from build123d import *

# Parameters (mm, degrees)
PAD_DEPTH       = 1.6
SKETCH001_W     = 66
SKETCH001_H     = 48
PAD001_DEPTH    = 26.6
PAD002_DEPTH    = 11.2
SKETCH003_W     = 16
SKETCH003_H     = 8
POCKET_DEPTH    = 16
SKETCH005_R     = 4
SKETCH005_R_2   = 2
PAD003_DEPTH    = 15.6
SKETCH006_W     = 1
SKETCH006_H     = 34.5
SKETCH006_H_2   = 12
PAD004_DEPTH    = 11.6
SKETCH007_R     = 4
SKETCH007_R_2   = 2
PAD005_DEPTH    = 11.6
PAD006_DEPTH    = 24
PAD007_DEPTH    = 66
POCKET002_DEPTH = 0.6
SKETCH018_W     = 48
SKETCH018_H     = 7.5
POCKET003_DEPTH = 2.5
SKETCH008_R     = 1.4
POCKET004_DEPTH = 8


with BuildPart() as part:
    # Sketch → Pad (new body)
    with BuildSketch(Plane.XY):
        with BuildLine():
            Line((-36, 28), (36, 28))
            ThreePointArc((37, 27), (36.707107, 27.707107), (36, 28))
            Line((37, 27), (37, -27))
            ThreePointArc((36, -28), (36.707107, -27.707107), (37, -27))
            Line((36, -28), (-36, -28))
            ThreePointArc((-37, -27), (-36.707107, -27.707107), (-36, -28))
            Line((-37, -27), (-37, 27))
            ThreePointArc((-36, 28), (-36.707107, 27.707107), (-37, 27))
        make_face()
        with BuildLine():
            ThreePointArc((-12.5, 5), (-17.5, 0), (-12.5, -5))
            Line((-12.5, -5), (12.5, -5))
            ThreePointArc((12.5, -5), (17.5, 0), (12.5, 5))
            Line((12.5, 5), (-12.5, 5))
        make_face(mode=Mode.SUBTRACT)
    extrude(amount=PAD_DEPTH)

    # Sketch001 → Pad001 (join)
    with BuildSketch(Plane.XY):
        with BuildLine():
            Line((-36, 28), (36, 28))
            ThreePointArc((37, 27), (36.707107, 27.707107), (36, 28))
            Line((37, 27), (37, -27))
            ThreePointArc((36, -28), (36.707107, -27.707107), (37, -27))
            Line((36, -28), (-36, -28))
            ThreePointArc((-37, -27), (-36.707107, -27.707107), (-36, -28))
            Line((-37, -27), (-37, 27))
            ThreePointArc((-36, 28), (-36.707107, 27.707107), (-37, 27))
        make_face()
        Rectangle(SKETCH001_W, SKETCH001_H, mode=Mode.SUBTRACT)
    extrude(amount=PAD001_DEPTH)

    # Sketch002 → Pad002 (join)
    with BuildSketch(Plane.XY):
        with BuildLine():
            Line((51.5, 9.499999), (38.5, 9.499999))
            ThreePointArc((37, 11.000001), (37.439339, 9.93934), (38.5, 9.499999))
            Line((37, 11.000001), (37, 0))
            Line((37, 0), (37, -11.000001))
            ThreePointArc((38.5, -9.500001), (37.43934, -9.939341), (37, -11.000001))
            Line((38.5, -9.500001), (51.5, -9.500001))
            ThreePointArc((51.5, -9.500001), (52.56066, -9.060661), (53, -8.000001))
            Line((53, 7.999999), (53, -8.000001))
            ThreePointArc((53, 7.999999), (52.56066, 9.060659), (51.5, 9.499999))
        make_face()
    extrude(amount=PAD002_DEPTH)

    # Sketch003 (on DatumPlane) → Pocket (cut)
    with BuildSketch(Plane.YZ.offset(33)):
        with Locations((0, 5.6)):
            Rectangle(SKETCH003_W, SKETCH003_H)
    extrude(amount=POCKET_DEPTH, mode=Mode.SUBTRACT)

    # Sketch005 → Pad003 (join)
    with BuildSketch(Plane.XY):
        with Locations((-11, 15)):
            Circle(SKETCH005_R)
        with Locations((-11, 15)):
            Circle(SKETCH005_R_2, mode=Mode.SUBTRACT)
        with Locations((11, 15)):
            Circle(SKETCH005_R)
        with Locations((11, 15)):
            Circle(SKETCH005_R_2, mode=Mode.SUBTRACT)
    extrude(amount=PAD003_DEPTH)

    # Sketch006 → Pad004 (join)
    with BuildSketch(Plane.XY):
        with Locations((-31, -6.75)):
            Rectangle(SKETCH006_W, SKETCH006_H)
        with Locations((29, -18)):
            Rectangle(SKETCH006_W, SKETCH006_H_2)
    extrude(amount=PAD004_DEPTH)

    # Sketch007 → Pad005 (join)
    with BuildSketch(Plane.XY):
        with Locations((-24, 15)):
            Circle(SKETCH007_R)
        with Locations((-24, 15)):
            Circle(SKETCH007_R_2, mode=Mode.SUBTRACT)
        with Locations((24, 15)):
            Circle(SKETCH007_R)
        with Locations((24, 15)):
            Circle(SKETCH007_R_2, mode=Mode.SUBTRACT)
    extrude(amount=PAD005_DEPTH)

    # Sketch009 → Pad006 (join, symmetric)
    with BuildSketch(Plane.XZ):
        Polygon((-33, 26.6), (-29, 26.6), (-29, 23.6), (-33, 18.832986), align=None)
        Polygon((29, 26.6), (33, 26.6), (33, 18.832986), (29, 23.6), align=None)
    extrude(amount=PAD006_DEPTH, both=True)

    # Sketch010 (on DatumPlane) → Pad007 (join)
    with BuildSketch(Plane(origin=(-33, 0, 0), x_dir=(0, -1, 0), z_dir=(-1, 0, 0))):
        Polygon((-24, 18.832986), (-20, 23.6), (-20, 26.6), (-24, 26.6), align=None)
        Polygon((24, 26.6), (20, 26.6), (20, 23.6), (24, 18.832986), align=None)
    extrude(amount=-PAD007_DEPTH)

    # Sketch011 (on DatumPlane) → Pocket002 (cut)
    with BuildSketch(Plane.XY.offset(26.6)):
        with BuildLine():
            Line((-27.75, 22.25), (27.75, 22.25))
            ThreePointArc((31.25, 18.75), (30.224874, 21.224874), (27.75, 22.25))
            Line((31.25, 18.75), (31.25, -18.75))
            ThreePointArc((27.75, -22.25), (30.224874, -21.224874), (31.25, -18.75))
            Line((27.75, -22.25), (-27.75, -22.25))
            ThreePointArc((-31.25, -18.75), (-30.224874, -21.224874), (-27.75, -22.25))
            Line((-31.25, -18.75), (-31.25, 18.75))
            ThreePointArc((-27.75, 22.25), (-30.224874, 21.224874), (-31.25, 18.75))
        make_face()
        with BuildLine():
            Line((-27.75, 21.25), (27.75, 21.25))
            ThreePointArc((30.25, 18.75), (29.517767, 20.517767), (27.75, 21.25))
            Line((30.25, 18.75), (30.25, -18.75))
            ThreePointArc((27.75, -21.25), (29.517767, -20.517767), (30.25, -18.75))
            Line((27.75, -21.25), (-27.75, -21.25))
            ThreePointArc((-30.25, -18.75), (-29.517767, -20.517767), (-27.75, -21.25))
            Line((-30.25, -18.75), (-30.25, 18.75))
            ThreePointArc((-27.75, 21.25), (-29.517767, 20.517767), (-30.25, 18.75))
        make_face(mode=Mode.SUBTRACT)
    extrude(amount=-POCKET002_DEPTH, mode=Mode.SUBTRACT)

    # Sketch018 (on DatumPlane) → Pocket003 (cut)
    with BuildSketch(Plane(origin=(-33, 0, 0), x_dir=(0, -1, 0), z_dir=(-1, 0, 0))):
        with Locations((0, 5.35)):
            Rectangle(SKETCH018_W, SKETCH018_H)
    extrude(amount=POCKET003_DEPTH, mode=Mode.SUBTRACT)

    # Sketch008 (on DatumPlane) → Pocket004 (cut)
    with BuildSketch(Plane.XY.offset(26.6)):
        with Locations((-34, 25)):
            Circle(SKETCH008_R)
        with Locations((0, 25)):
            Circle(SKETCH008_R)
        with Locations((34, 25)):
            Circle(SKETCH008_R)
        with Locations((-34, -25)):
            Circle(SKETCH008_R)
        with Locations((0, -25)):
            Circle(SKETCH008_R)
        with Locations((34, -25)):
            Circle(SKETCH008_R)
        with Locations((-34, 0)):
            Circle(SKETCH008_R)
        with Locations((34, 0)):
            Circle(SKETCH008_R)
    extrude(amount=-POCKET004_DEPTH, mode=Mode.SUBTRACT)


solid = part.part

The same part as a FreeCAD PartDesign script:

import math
import FreeCAD as App
import Part
import Sketcher

V = App.Vector
Q = App.Units.Quantity


def add_polygon(sketch, points):
    """Adds a closed chain of lines whose ends are joined by coincident constraints."""
    first, n = sketch.GeometryCount, len(points)
    for a, b in zip(points, points[1:] + points[:1]):
        sketch.addGeometry(Part.LineSegment(App.Vector(*a, 0), App.Vector(*b, 0)), False)
    for i in range(n):
        sketch.addConstraint(Sketcher.Constraint("Coincident", first + i, 2, first + (i + 1) % n, 1))

doc = App.newDocument("Part")
params = doc.addObject("Spreadsheet::Sheet", "Params")
for row, (alias, value) in enumerate([
    ("sketch1_radius", "0.999999 mm"),
    ("sketch1_radius2", "5 mm"),
    ("sketch1_width", "72 mm"),
    ("sketch1_width2", "25 mm"),
    ("sketch1_height", "54 mm"),
    ("pad1_length", "1.6 mm"),
    ("sketch2_radius", "0.999999 mm"),
    ("sketch2_width", "72 mm"),
    ("sketch2_width2", "66 mm"),
    ("sketch2_height", "54 mm"),
    ("sketch2_height2", "48 mm"),
    ("pad2_length", "26.6 mm"),
    ("sketch3_radius", "1.500001 mm"),
    ("sketch3_width", "13 mm"),
    ("sketch3_height", "22.000002 mm"),
    ("pad3_length", "11.2 mm"),
    ("sketch4_width", "16 mm"),
    ("sketch4_height", "8 mm"),
    ("pocket1_length", "16 mm"),
    ("sketch5_diameter", "8 mm"),
    ("sketch5_diameter2", "4 mm"),
    ("pad4_length", "15.6 mm"),
    ("sketch6_width", "1 mm"),
    ("sketch6_height", "12 mm"),
    ("sketch6_height2", "34.5 mm"),
    ("pad5_length", "11.6 mm"),
    ("sketch7_diameter", "8 mm"),
    ("sketch7_diameter2", "4 mm"),
    ("pad6_length", "11.6 mm"),
    ("sketch8_width", "4 mm"),
    ("sketch8_height", "3 mm"),
    ("pad7_length", "48 mm"),
    ("sketch9_width", "4 mm"),
    ("sketch9_height", "3 mm"),
    ("pad8_length", "66 mm"),
    ("sketch10_radius", "3.499999 mm"),
    ("sketch10_radius2", "2.5 mm"),
    ("sketch10_width", "55.5 mm"),
    ("sketch10_height", "37.5 mm"),
    ("pocket2_length", "0.6 mm"),
    ("sketch11_width", "48 mm"),
    ("sketch11_height", "7.5 mm"),
    ("pocket3_length", "2.5 mm"),
    ("sketch12_diameter", "2.8 mm"),
    ("pocket4_length", "8 mm"),
], start=1):
    params.set(f"A{row}", alias)
    params.set(f"B{row}", "=" + value)
    params.setAlias(f"B{row}", alias)

body = doc.addObject("PartDesign::Body", "Body")

sketch1 = body.newObject("Sketcher::SketchObject", "Sketch")
sketch1.AttachmentSupport = (doc.getObject("XY_Plane"), [""])
sketch1.MapMode = "FlatFace"
sketch1.addGeometry([
    Part.LineSegment(V(36, 28, 0), V(-36, 28, 0)),
    Part.ArcOfCircle(Part.Circle(V(-36.000001, 27.000001, 0), V(0, 0, 1), 0.999999), math.radians(89.999957), math.radians(180.000043)),
    Part.LineSegment(V(-37, 27, 0), V(-37, -27, 0)),
    Part.ArcOfCircle(Part.Circle(V(-36.000001, -27.000001, 0), V(0, 0, 1), 0.999999), math.radians(179.999957), math.radians(270.000043)),
    Part.LineSegment(V(-36, -28, 0), V(36, -28, 0)),
    Part.ArcOfCircle(Part.Circle(V(36.000001, -27.000001, 0), V(0, 0, 1), 0.999999), math.radians(-90.000043), math.radians(0.000043)),
    Part.LineSegment(V(37, -27, 0), V(37, 27, 0)),
    Part.ArcOfCircle(Part.Circle(V(36.000001, 27.000001, 0), V(0, 0, 1), 0.999999), math.radians(-0.000043), math.radians(90.000043)),
    Part.LineSegment(V(-12.5, 5, 0), V(12.5, 5, 0)),
    Part.ArcOfCircle(Part.Circle(V(12.5, 0, 0), V(0, 0, 1), 5), math.radians(-90), math.radians(90)),
    Part.LineSegment(V(12.5, -5, 0), V(-12.5, -5, 0)),
    Part.ArcOfCircle(Part.Circle(V(-12.5, 0, 0), V(0, 0, 1), 5), math.radians(90), math.radians(270)),
], False)
sketch1.addConstraint([
    Sketcher.Constraint("Tangent", 0, 2, 1, 1),
    Sketcher.Constraint("Tangent", 1, 2, 2, 1),
    Sketcher.Constraint("Tangent", 2, 2, 3, 1),
    Sketcher.Constraint("Tangent", 3, 2, 4, 1),
    Sketcher.Constraint("Tangent", 4, 2, 5, 1),
    Sketcher.Constraint("Tangent", 5, 2, 6, 1),
    Sketcher.Constraint("Tangent", 6, 2, 7, 1),
    Sketcher.Constraint("Tangent", 7, 2, 0, 1),
    Sketcher.Constraint("Tangent", 8, 2, 9, 2),
    Sketcher.Constraint("Tangent", 9, 1, 10, 1),
    Sketcher.Constraint("Tangent", 10, 2, 11, 2),
    Sketcher.Constraint("Tangent", 11, 1, 8, 1),
    Sketcher.Constraint("Horizontal", 0),
    Sketcher.Constraint("Vertical", 2),
    Sketcher.Constraint("Horizontal", 4),
    Sketcher.Constraint("Vertical", 6),
    Sketcher.Constraint("Horizontal", 8),
    Sketcher.Constraint("Horizontal", 10),
    Sketcher.Constraint("Equal", 1, 3),
    Sketcher.Constraint("Equal", 3, 5),
    Sketcher.Constraint("Equal", 5, 7),
    Sketcher.Constraint("Symmetric", 1, 3, 5, 3, -1, 1),
    Sketcher.Constraint("Symmetric", 9, 3, 11, 3, -1, 1),
    Sketcher.Constraint("Radius", 1, Q("0.999999 mm")),
    Sketcher.Constraint("Radius", 9, Q("5 mm")),
    Sketcher.Constraint("DistanceX", 0, 2, 0, 1, Q("72 mm")),
    Sketcher.Constraint("DistanceX", 8, 1, 8, 2, Q("25 mm")),
    Sketcher.Constraint("DistanceY", 2, 2, 2, 1, Q("54 mm")),
])
sketch1.setExpression("Constraints[23]", "Params.sketch1_radius")
sketch1.setExpression("Constraints[24]", "Params.sketch1_radius2")
sketch1.setExpression("Constraints[25]", "Params.sketch1_width")
sketch1.setExpression("Constraints[26]", "Params.sketch1_width2")
sketch1.setExpression("Constraints[27]", "Params.sketch1_height")
pad1 = body.newObject("PartDesign::Pad", "Pad")
pad1.Profile = sketch1
pad1.setExpression("Length", "Params.pad1_length")

sketch2 = body.newObject("Sketcher::SketchObject", "Sketch001")
sketch2.AttachmentSupport = (doc.getObject("XY_Plane"), [""])
sketch2.MapMode = "FlatFace"
sketch2.addGeometry(Part.LineSegment(V(36, 28, 0), V(-36, 28, 0)), False)
sketch2.addGeometry(Part.ArcOfCircle(Part.Circle(V(-36.000001, 27.000001, 0), V(0, 0, 1), 0.999999), math.radians(89.999957), math.radians(180.000043)), False)
sketch2.addGeometry(Part.LineSegment(V(-37, 27, 0), V(-37, -27, 0)), False)
sketch2.addGeometry(Part.ArcOfCircle(Part.Circle(V(-36.000001, -27.000001, 0), V(0, 0, 1), 0.999999), math.radians(179.999957), math.radians(270.000043)), False)
sketch2.addGeometry(Part.LineSegment(V(-36, -28, 0), V(36, -28, 0)), False)
sketch2.addGeometry(Part.ArcOfCircle(Part.Circle(V(36.000001, -27.000001, 0), V(0, 0, 1), 0.999999), math.radians(-90.000043), math.radians(0.000043)), False)
sketch2.addGeometry(Part.LineSegment(V(37, -27, 0), V(37, 27, 0)), False)
sketch2.addGeometry(Part.ArcOfCircle(Part.Circle(V(36.000001, 27.000001, 0), V(0, 0, 1), 0.999999), math.radians(-0.000043), math.radians(90.000043)), False)
add_polygon(sketch2, [(-33, -24), (-33, 24), (33, 24), (33, -24)])
sketch2.addConstraint([
    Sketcher.Constraint("Tangent", 0, 2, 1, 1),
    Sketcher.Constraint("Tangent", 1, 2, 2, 1),
    Sketcher.Constraint("Tangent", 2, 2, 3, 1),
    Sketcher.Constraint("Tangent", 3, 2, 4, 1),
    Sketcher.Constraint("Tangent", 4, 2, 5, 1),
    Sketcher.Constraint("Tangent", 5, 2, 6, 1),
    Sketcher.Constraint("Tangent", 6, 2, 7, 1),
    Sketcher.Constraint("Tangent", 7, 2, 0, 1),
    Sketcher.Constraint("Horizontal", 0),
    Sketcher.Constraint("Vertical", 2),
    Sketcher.Constraint("Horizontal", 4),
    Sketcher.Constraint("Vertical", 6),
    Sketcher.Constraint("Vertical", 8),
    Sketcher.Constraint("Horizontal", 9),
    Sketcher.Constraint("Vertical", 10),
    Sketcher.Constraint("Horizontal", 11),
    Sketcher.Constraint("Equal", 1, 3),
    Sketcher.Constraint("Equal", 3, 5),
    Sketcher.Constraint("Equal", 5, 7),
    Sketcher.Constraint("Symmetric", 1, 3, 5, 3, -1, 1),
    Sketcher.Constraint("Symmetric", 8, 2, 10, 2, -1, 1),
    Sketcher.Constraint("Radius", 1, Q("0.999999 mm")),
    Sketcher.Constraint("DistanceX", 0, 2, 0, 1, Q("72 mm")),
    Sketcher.Constraint("DistanceX", 9, 1, 9, 2, Q("66 mm")),
    Sketcher.Constraint("DistanceY", 2, 2, 2, 1, Q("54 mm")),
    Sketcher.Constraint("DistanceY", 8, 1, 8, 2, Q("48 mm")),
])
sketch2.setExpression("Constraints[25]", "Params.sketch2_radius")
sketch2.setExpression("Constraints[26]", "Params.sketch2_width")
sketch2.setExpression("Constraints[27]", "Params.sketch2_width2")
sketch2.setExpression("Constraints[28]", "Params.sketch2_height")
sketch2.setExpression("Constraints[29]", "Params.sketch2_height2")
pad2 = body.newObject("PartDesign::Pad", "Pad001")
pad2.Profile = sketch2
pad2.setExpression("Length", "Params.pad2_length")

sketch3 = body.newObject("Sketcher::SketchObject", "Sketch002")
sketch3.AttachmentSupport = (doc.getObject("XY_Plane"), [""])
sketch3.MapMode = "FlatFace"
sketch3.addGeometry([
    Part.LineSegment(V(51.5, 9.499999, 0), V(38.5, 9.499999, 0)),
    Part.ArcOfCircle(Part.Circle(V(38.500001, 11, 0), V(0, 0, 1), 1.500001), math.radians(179.999946), math.radians(269.999978)),
    Part.LineSegment(V(37, 11.000001, 0), V(37, -11.000001, 0)),
    Part.ArcOfCircle(Part.Circle(V(38.500001, -11.000002, 0), V(0, 0, 1), 1.500001), math.radians(90.000022), math.radians(179.999978)),
    Part.LineSegment(V(38.5, -9.500001, 0), V(51.5, -9.500001, 0)),
    Part.ArcOfCircle(Part.Circle(V(51.499999, -8, 0), V(0, 0, 1), 1.500001), math.radians(-89.999978), math.radians(-0.000022)),
    Part.LineSegment(V(53, -8.000001, 0), V(53, 7.999999, 0)),
    Part.ArcOfCircle(Part.Circle(V(51.499999, 7.999998, 0), V(0, 0, 1), 1.500001), math.radians(0.000022), math.radians(89.999978)),
], False)
sketch3.addConstraint([
    Sketcher.Constraint("Tangent", 0, 2, 1, 2),
    Sketcher.Constraint("Tangent", 1, 1, 2, 1),
    Sketcher.Constraint("Tangent", 2, 2, 3, 2),
    Sketcher.Constraint("Tangent", 3, 1, 4, 1),
    Sketcher.Constraint("Tangent", 4, 2, 5, 1),
    Sketcher.Constraint("Tangent", 5, 2, 6, 1),
    Sketcher.Constraint("Tangent", 6, 2, 7, 1),
    Sketcher.Constraint("Tangent", 7, 2, 0, 1),
    Sketcher.Constraint("Horizontal", 0),
    Sketcher.Constraint("Vertical", 2),
    Sketcher.Constraint("Horizontal", 4),
    Sketcher.Constraint("Vertical", 6),
    Sketcher.Constraint("Equal", 1, 3),
    Sketcher.Constraint("Equal", 3, 5),
    Sketcher.Constraint("Equal", 5, 7),
    Sketcher.Constraint("Radius", 1, Q("1.500001 mm")),
    Sketcher.Constraint("DistanceX", 0, 2, 0, 1, Q("13 mm")),
    Sketcher.Constraint("DistanceY", 2, 2, 2, 1, Q("22.000002 mm")),
    Sketcher.Constraint("DistanceY", -1, 1, 1, 3, Q("11 mm")),
    Sketcher.Constraint("DistanceX", -1, 1, 1, 1, Q("37 mm")),
])
sketch3.setExpression("Constraints[15]", "Params.sketch3_radius")
sketch3.setExpression("Constraints[16]", "Params.sketch3_width")
sketch3.setExpression("Constraints[17]", "Params.sketch3_height")
pad3 = body.newObject("PartDesign::Pad", "Pad002")
pad3.Profile = sketch3
pad3.setExpression("Length", "Params.pad3_length")

sketch4 = body.newObject("Sketcher::SketchObject", "Sketch003")
sketch4.AttachmentSupport = (doc.getObject("YZ_Plane"), [""])
sketch4.MapMode = "FlatFace"
sketch4.AttachmentOffset = App.Placement(V(0, 0, 33), App.Rotation())
add_polygon(sketch4, [(-8, 9.6), (-8, 1.6), (8, 1.6), (8, 9.6)])
sketch4.addConstraint([
    Sketcher.Constraint("Vertical", 0),
    Sketcher.Constraint("Horizontal", 1),
    Sketcher.Constraint("Vertical", 2),
    Sketcher.Constraint("Horizontal", 3),
    Sketcher.Constraint("DistanceX", 1, 1, 1, 2, Q("16 mm")),
    Sketcher.Constraint("DistanceY", 0, 2, 0, 1, Q("8 mm")),
    Sketcher.Constraint("DistanceX", 0, 2, -1, 1, Q("8 mm")),
    Sketcher.Constraint("DistanceY", -1, 1, 0, 2, Q("1.6 mm")),
])
sketch4.setExpression("Constraints[8]", "Params.sketch4_width")
sketch4.setExpression("Constraints[9]", "Params.sketch4_height")
pocket1 = body.newObject("PartDesign::Pocket", "Pocket")
pocket1.Profile = sketch4
pocket1.setExpression("Length", "Params.pocket1_length")
pocket1.Reversed = True

sketch5 = body.newObject("Sketcher::SketchObject", "Sketch004")
sketch5.AttachmentSupport = (doc.getObject("XY_Plane"), [""])
sketch5.MapMode = "FlatFace"
sketch5.addGeometry([
    Part.Circle(V(-11, 15, 0), V(0, 0, 1), 4),
    Part.Circle(V(-11, 15, 0), V(0, 0, 1), 2),
    Part.Circle(V(11, 15, 0), V(0, 0, 1), 4),
    Part.Circle(V(11, 15, 0), V(0, 0, 1), 2),
], False)
sketch5.addConstraint([
    Sketcher.Constraint("Coincident", 1, 3, 0, 3),
    Sketcher.Constraint("Coincident", 3, 3, 2, 3),
    Sketcher.Constraint("Equal", 0, 2),
    Sketcher.Constraint("Equal", 1, 3),
    Sketcher.Constraint("Symmetric", 0, 3, 2, 3, -2),
    Sketcher.Constraint("Diameter", 0, Q("8 mm")),
    Sketcher.Constraint("Diameter", 1, Q("4 mm")),
    Sketcher.Constraint("DistanceX", 0, 3, -1, 1, Q("11 mm")),
    Sketcher.Constraint("DistanceY", -1, 1, 0, 3, Q("15 mm")),
])
sketch5.setExpression("Constraints[5]", "Params.sketch5_diameter")
sketch5.setExpression("Constraints[6]", "Params.sketch5_diameter2")
pad4 = body.newObject("PartDesign::Pad", "Pad003")
pad4.Profile = sketch5
pad4.setExpression("Length", "Params.pad4_length")

sketch6 = body.newObject("Sketcher::SketchObject", "Sketch005")
sketch6.AttachmentSupport = (doc.getObject("XY_Plane"), [""])
sketch6.MapMode = "FlatFace"
add_polygon(sketch6, [(-31.5, 10.5), (-31.5, -24), (-30.5, -24), (-30.5, 10.5)])
add_polygon(sketch6, [(28.5, -12), (28.5, -24), (29.5, -24), (29.5, -12)])
sketch6.addConstraint([
    Sketcher.Constraint("Vertical", 0),
    Sketcher.Constraint("Horizontal", 1),
    Sketcher.Constraint("Vertical", 2),
    Sketcher.Constraint("Horizontal", 3),
    Sketcher.Constraint("Vertical", 4),
    Sketcher.Constraint("Horizontal", 5),
    Sketcher.Constraint("Vertical", 6),
    Sketcher.Constraint("Horizontal", 7),
    Sketcher.Constraint("Horizontal", 1, 2, 4, 2),
    Sketcher.Constraint("Equal", 3, 5),
    Sketcher.Constraint("DistanceX", 1, 1, 1, 2, Q("1 mm")),
    Sketcher.Constraint("DistanceY", 4, 2, 4, 1, Q("12 mm")),
    Sketcher.Constraint("DistanceY", 0, 2, 0, 1, Q("34.5 mm")),
    Sketcher.Constraint("DistanceY", 0, 2, -1, 1, Q("24 mm")),
    Sketcher.Constraint("DistanceX", 1, 2, 4, 2, Q("59 mm")),
    Sketcher.Constraint("DistanceX", 0, 2, -1, 1, Q("31.5 mm")),
])
sketch6.setExpression("Constraints[18]", "Params.sketch6_width")
sketch6.setExpression("Constraints[19]", "Params.sketch6_height")
sketch6.setExpression("Constraints[20]", "Params.sketch6_height2")
pad5 = body.newObject("PartDesign::Pad", "Pad004")
pad5.Profile = sketch6
pad5.setExpression("Length", "Params.pad5_length")

sketch7 = body.newObject("Sketcher::SketchObject", "Sketch006")
sketch7.AttachmentSupport = (doc.getObject("XY_Plane"), [""])
sketch7.MapMode = "FlatFace"
sketch7.addGeometry([
    Part.Circle(V(-24, 15, 0), V(0, 0, 1), 4),
    Part.Circle(V(-24, 15, 0), V(0, 0, 1), 2),
    Part.Circle(V(24, 15, 0), V(0, 0, 1), 4),
    Part.Circle(V(24, 15, 0), V(0, 0, 1), 2),
], False)
sketch7.addConstraint([
    Sketcher.Constraint("Coincident", 1, 3, 0, 3),
    Sketcher.Constraint("Coincident", 3, 3, 2, 3),
    Sketcher.Constraint("Equal", 0, 2),
    Sketcher.Constraint("Equal", 1, 3),
    Sketcher.Constraint("Symmetric", 0, 3, 2, 3, -2),
    Sketcher.Constraint("Diameter", 0, Q("8 mm")),
    Sketcher.Constraint("Diameter", 1, Q("4 mm")),
    Sketcher.Constraint("DistanceX", 0, 3, -1, 1, Q("24 mm")),
    Sketcher.Constraint("DistanceY", -1, 1, 0, 3, Q("15 mm")),
])
sketch7.setExpression("Constraints[5]", "Params.sketch7_diameter")
sketch7.setExpression("Constraints[6]", "Params.sketch7_diameter2")
pad6 = body.newObject("PartDesign::Pad", "Pad005")
pad6.Profile = sketch7
pad6.setExpression("Length", "Params.pad6_length")

sketch8 = body.newObject("Sketcher::SketchObject", "Sketch007")
sketch8.AttachmentSupport = (doc.getObject("XZ_Plane"), [""])
sketch8.MapMode = "FlatFace"
add_polygon(sketch8, [(-29, 26.6), (-33, 26.6), (-33, 18.832986), (-29, 23.6)])
add_polygon(sketch8, [(33, 26.6), (29, 26.6), (29, 23.6), (33, 18.832986)])
sketch8.addConstraint([
    Sketcher.Constraint("Horizontal", 0),
    Sketcher.Constraint("Vertical", 1),
    Sketcher.Constraint("Vertical", 3),
    Sketcher.Constraint("Horizontal", 4),
    Sketcher.Constraint("Vertical", 5),
    Sketcher.Constraint("Vertical", 7),
    Sketcher.Constraint("Symmetric", 3, 2, 4, 2, -2),
    Sketcher.Constraint("Symmetric", 1, 2, 6, 2, -2),
    Sketcher.Constraint("Horizontal", 2, 2, 5, 2),
    Sketcher.Constraint("DistanceX", 0, 2, 0, 1, Q("4 mm")),
    Sketcher.Constraint("DistanceY", 3, 1, 3, 2, Q("3 mm")),
    Sketcher.Constraint("Angle", 2, Q("49.999998 deg")),
    Sketcher.Constraint("DistanceX", 0, 2, -1, 1, Q("33 mm")),
    Sketcher.Constraint("DistanceY", -1, 1, 0, 2, Q("26.6 mm")),
])
sketch8.setExpression("Constraints[17]", "Params.sketch8_width")
sketch8.setExpression("Constraints[18]", "Params.sketch8_height")
pad7 = body.newObject("PartDesign::Pad", "Pad006")
pad7.Profile = sketch8
pad7.setExpression("Length", "Params.pad7_length")
pad7.Midplane = True

sketch9 = body.newObject("Sketcher::SketchObject", "Sketch008")
sketch9.AttachmentSupport = (doc.getObject("YZ_Plane"), [""])
sketch9.MapMode = "FlatFace"
sketch9.AttachmentOffset = App.Placement(V(0, 0, -33), App.Rotation())
add_polygon(sketch9, [(24, 18.832986), (20, 23.6), (20, 26.6), (24, 26.6)])
add_polygon(sketch9, [(-24, 26.6), (-20, 26.6), (-20, 23.6), (-24, 18.832986)])
sketch9.addConstraint([
    Sketcher.Constraint("Vertical", 1),
    Sketcher.Constraint("Horizontal", 2),
    Sketcher.Constraint("Vertical", 3),
    Sketcher.Constraint("Horizontal", 4),
    Sketcher.Constraint("Vertical", 5),
    Sketcher.Constraint("Vertical", 7),
    Sketcher.Constraint("Symmetric", 1, 2, 4, 2, -2),
    Sketcher.Constraint("Symmetric", 3, 2, 6, 2, -2),
    Sketcher.Constraint("Horizontal", 0, 2, 5, 2),
    Sketcher.Constraint("DistanceX", 2, 1, 2, 2, Q("4 mm")),
    Sketcher.Constraint("DistanceY", 1, 1, 1, 2, Q("3 mm")),
    Sketcher.Constraint("Angle", 0, Q("130.000002 deg")),
    Sketcher.Constraint("DistanceX", -1, 1, 0, 2, Q("20 mm")),
    Sketcher.Constraint("DistanceY", -1, 1, 0, 2, Q("23.6 mm")),
])
sketch9.setExpression("Constraints[17]", "Params.sketch9_width")
sketch9.setExpression("Constraints[18]", "Params.sketch9_height")
pad8 = body.newObject("PartDesign::Pad", "Pad007")
pad8.Profile = sketch9
pad8.setExpression("Length", "Params.pad8_length")

sketch10 = body.newObject("Sketcher::SketchObject", "Sketch009")
sketch10.AttachmentSupport = (doc.getObject("XY_Plane"), [""])
sketch10.MapMode = "FlatFace"
sketch10.AttachmentOffset = App.Placement(V(0, 0, 26.6), App.Rotation())
sketch10.addGeometry([
    Part.LineSegment(V(27.75, 22.25, 0), V(-27.75, 22.25, 0)),
    Part.ArcOfCircle(Part.Circle(V(-27.750001, 18.750001, 0), V(0, 0, 1), 3.499999), math.radians(89.999985), math.radians(180.000015)),
    Part.LineSegment(V(-31.25, 18.75, 0), V(-31.25, -18.75, 0)),
    Part.ArcOfCircle(Part.Circle(V(-27.750001, -18.750001, 0), V(0, 0, 1), 3.499999), math.radians(179.999985), math.radians(270.000015)),
    Part.LineSegment(V(-27.75, -22.25, 0), V(27.75, -22.25, 0)),
    Part.ArcOfCircle(Part.Circle(V(27.750001, -18.750001, 0), V(0, 0, 1), 3.499999), math.radians(-90.000015), math.radians(0.000015)),
    Part.LineSegment(V(31.25, -18.75, 0), V(31.25, 18.75, 0)),
    Part.ArcOfCircle(Part.Circle(V(27.750001, 18.750001, 0), V(0, 0, 1), 3.499999), math.radians(-0.000015), math.radians(90.000015)),
    Part.LineSegment(V(-27.75, 21.25, 0), V(27.75, 21.25, 0)),
    Part.ArcOfCircle(Part.Circle(V(27.75, 18.75, 0), V(0, 0, 1), 2.5), math.radians(-0.000004), math.radians(90.000004)),
    Part.LineSegment(V(30.25, 18.75, 0), V(30.25, -18.75, 0)),
    Part.ArcOfCircle(Part.Circle(V(27.75, -18.75, 0), V(0, 0, 1), 2.5), math.radians(-90.000004), math.radians(0.000004)),
    Part.LineSegment(V(27.75, -21.25, 0), V(-27.75, -21.25, 0)),
    Part.ArcOfCircle(Part.Circle(V(-27.75, -18.75, 0), V(0, 0, 1), 2.5), math.radians(179.999996), math.radians(270.000004)),
    Part.LineSegment(V(-30.25, -18.75, 0), V(-30.25, 18.75, 0)),
    Part.ArcOfCircle(Part.Circle(V(-27.75, 18.75, 0), V(0, 0, 1), 2.5), math.radians(89.999996), math.radians(180.000004)),
], False)
sketch10.addConstraint([
    Sketcher.Constraint("Tangent", 0, 2, 1, 1),
    Sketcher.Constraint("Tangent", 1, 2, 2, 1),
    Sketcher.Constraint("Tangent", 2, 2, 3, 1),
    Sketcher.Constraint("Tangent", 3, 2, 4, 1),
    Sketcher.Constraint("Tangent", 4, 2, 5, 1),
    Sketcher.Constraint("Tangent", 5, 2, 6, 1),
    Sketcher.Constraint("Tangent", 6, 2, 7, 1),
    Sketcher.Constraint("Tangent", 7, 2, 0, 1),
    Sketcher.Constraint("Tangent", 8, 2, 9, 2),
    Sketcher.Constraint("Tangent", 9, 1, 10, 1),
    Sketcher.Constraint("Tangent", 10, 2, 11, 2),
    Sketcher.Constraint("Tangent", 11, 1, 12, 1),
    Sketcher.Constraint("Tangent", 12, 2, 13, 2),
    Sketcher.Constraint("Tangent", 13, 1, 14, 1),
    Sketcher.Constraint("Tangent", 14, 2, 15, 2),
    Sketcher.Constraint("Tangent", 15, 1, 8, 1),
    Sketcher.Constraint("Horizontal", 0),
    Sketcher.Constraint("Vertical", 2),
    Sketcher.Constraint("Horizontal", 4),
    Sketcher.Constraint("Vertical", 6),
    Sketcher.Constraint("Horizontal", 8),
    Sketcher.Constraint("Vertical", 10),
    Sketcher.Constraint("Horizontal", 12),
    Sketcher.Constraint("Vertical", 14),
    Sketcher.Constraint("Coincident", 9, 3, 7, 3),
    Sketcher.Constraint("Coincident", 11, 3, 5, 3),
    Sketcher.Constraint("Coincident", 13, 3, 3, 3),
    Sketcher.Constraint("Equal", 1, 3),
    Sketcher.Constraint("Equal", 3, 5),
    Sketcher.Constraint("Equal", 5, 7),
    Sketcher.Constraint("Equal", 13, 15),
    Sketcher.Constraint("Symmetric", 1, 3, 5, 3, -1, 1),
    Sketcher.Constraint("Radius", 1, Q("3.499999 mm")),
    Sketcher.Constraint("Radius", 9, Q("2.5 mm")),
    Sketcher.Constraint("DistanceX", 0, 2, 0, 1, Q("55.5 mm")),
    Sketcher.Constraint("DistanceY", 2, 2, 2, 1, Q("37.5 mm")),
])
sketch10.setExpression("Constraints[32]", "Params.sketch10_radius")
sketch10.setExpression("Constraints[33]", "Params.sketch10_radius2")
sketch10.setExpression("Constraints[34]", "Params.sketch10_width")
sketch10.setExpression("Constraints[35]", "Params.sketch10_height")
pocket2 = body.newObject("PartDesign::Pocket", "Pocket001")
pocket2.Profile = sketch10
pocket2.setExpression("Length", "Params.pocket2_length")

sketch11 = body.newObject("Sketcher::SketchObject", "Sketch010")
sketch11.AttachmentSupport = (doc.getObject("YZ_Plane"), [""])
sketch11.MapMode = "FlatFace"
sketch11.AttachmentOffset = App.Placement(V(0, 0, -33), App.Rotation())
add_polygon(sketch11, [(24, 9.1), (24, 1.6), (-24, 1.6), (-24, 9.1)])
sketch11.addConstraint([
    Sketcher.Constraint("Vertical", 0),
    Sketcher.Constraint("Horizontal", 1),
    Sketcher.Constraint("Vertical", 2),
    Sketcher.Constraint("Horizontal", 3),
    Sketcher.Constraint("DistanceX", 1, 2, 1, 1, Q("48 mm")),
    Sketcher.Constraint("DistanceY", 0, 2, 0, 1, Q("7.5 mm")),
    Sketcher.Constraint("DistanceX", -1, 1, 0, 2, Q("24 mm")),
    Sketcher.Constraint("DistanceY", -1, 1, 0, 2, Q("1.6 mm")),
])
sketch11.setExpression("Constraints[8]", "Params.sketch11_width")
sketch11.setExpression("Constraints[9]", "Params.sketch11_height")
pocket3 = body.newObject("PartDesign::Pocket", "Pocket002")
pocket3.Profile = sketch11
pocket3.setExpression("Length", "Params.pocket3_length")

sketch12 = body.newObject("Sketcher::SketchObject", "Sketch011")
sketch12.AttachmentSupport = (doc.getObject("XY_Plane"), [""])
sketch12.MapMode = "FlatFace"
sketch12.AttachmentOffset = App.Placement(V(0, 0, 26.6), App.Rotation())
sketch12.addGeometry([
    Part.Circle(V(-34, 25, 0), V(0, 0, 1), 1.4),
    Part.Circle(V(0, 25, 0), V(0, 0, 1), 1.4),
    Part.Circle(V(34, 25, 0), V(0, 0, 1), 1.4),
    Part.Circle(V(-34, -25, 0), V(0, 0, 1), 1.4),
    Part.Circle(V(0, -25, 0), V(0, 0, 1), 1.4),
    Part.Circle(V(34, -25, 0), V(0, 0, 1), 1.4),
    Part.Circle(V(-34, 0, 0), V(0, 0, 1), 1.4),
    Part.Circle(V(34, 0, 0), V(0, 0, 1), 1.4),
], False)
sketch12.addConstraint([
    Sketcher.Constraint("Equal", 0, 1),
    Sketcher.Constraint("Equal", 1, 2),
    Sketcher.Constraint("Equal", 2, 3),
    Sketcher.Constraint("Equal", 3, 4),
    Sketcher.Constraint("Equal", 4, 5),
    Sketcher.Constraint("Equal", 5, 6),
    Sketcher.Constraint("Equal", 6, 7),
    Sketcher.Constraint("Symmetric", 2, 3, 3, 3, -1, 1),
    Sketcher.Constraint("Symmetric", 1, 3, 4, 3, -1, 1),
    Sketcher.Constraint("Symmetric", 0, 3, 5, 3, -1, 1),
    Sketcher.Constraint("Symmetric", 6, 3, 7, 3, -1, 1),
    Sketcher.Constraint("Symmetric", 0, 3, 2, 3, -2),
    Sketcher.Constraint("PointOnObject", 1, 3, -2),
    Sketcher.Constraint("PointOnObject", 6, 3, -1),
    Sketcher.Constraint("Horizontal", 0, 3, 1, 3),
    Sketcher.Constraint("Vertical", 3, 3, 6, 3),
    Sketcher.Constraint("Diameter", 0, Q("2.8 mm")),
    Sketcher.Constraint("DistanceX", 0, 3, -1, 1, Q("34 mm")),
    Sketcher.Constraint("DistanceY", -1, 1, 0, 3, Q("25 mm")),
])
sketch12.setExpression("Constraints[16]", "Params.sketch12_diameter")
pocket4 = body.newObject("PartDesign::Pocket", "Pocket003")
pocket4.Profile = sketch12
pocket4.setExpression("Length", "Params.pocket4_length")

doc.recompute()
